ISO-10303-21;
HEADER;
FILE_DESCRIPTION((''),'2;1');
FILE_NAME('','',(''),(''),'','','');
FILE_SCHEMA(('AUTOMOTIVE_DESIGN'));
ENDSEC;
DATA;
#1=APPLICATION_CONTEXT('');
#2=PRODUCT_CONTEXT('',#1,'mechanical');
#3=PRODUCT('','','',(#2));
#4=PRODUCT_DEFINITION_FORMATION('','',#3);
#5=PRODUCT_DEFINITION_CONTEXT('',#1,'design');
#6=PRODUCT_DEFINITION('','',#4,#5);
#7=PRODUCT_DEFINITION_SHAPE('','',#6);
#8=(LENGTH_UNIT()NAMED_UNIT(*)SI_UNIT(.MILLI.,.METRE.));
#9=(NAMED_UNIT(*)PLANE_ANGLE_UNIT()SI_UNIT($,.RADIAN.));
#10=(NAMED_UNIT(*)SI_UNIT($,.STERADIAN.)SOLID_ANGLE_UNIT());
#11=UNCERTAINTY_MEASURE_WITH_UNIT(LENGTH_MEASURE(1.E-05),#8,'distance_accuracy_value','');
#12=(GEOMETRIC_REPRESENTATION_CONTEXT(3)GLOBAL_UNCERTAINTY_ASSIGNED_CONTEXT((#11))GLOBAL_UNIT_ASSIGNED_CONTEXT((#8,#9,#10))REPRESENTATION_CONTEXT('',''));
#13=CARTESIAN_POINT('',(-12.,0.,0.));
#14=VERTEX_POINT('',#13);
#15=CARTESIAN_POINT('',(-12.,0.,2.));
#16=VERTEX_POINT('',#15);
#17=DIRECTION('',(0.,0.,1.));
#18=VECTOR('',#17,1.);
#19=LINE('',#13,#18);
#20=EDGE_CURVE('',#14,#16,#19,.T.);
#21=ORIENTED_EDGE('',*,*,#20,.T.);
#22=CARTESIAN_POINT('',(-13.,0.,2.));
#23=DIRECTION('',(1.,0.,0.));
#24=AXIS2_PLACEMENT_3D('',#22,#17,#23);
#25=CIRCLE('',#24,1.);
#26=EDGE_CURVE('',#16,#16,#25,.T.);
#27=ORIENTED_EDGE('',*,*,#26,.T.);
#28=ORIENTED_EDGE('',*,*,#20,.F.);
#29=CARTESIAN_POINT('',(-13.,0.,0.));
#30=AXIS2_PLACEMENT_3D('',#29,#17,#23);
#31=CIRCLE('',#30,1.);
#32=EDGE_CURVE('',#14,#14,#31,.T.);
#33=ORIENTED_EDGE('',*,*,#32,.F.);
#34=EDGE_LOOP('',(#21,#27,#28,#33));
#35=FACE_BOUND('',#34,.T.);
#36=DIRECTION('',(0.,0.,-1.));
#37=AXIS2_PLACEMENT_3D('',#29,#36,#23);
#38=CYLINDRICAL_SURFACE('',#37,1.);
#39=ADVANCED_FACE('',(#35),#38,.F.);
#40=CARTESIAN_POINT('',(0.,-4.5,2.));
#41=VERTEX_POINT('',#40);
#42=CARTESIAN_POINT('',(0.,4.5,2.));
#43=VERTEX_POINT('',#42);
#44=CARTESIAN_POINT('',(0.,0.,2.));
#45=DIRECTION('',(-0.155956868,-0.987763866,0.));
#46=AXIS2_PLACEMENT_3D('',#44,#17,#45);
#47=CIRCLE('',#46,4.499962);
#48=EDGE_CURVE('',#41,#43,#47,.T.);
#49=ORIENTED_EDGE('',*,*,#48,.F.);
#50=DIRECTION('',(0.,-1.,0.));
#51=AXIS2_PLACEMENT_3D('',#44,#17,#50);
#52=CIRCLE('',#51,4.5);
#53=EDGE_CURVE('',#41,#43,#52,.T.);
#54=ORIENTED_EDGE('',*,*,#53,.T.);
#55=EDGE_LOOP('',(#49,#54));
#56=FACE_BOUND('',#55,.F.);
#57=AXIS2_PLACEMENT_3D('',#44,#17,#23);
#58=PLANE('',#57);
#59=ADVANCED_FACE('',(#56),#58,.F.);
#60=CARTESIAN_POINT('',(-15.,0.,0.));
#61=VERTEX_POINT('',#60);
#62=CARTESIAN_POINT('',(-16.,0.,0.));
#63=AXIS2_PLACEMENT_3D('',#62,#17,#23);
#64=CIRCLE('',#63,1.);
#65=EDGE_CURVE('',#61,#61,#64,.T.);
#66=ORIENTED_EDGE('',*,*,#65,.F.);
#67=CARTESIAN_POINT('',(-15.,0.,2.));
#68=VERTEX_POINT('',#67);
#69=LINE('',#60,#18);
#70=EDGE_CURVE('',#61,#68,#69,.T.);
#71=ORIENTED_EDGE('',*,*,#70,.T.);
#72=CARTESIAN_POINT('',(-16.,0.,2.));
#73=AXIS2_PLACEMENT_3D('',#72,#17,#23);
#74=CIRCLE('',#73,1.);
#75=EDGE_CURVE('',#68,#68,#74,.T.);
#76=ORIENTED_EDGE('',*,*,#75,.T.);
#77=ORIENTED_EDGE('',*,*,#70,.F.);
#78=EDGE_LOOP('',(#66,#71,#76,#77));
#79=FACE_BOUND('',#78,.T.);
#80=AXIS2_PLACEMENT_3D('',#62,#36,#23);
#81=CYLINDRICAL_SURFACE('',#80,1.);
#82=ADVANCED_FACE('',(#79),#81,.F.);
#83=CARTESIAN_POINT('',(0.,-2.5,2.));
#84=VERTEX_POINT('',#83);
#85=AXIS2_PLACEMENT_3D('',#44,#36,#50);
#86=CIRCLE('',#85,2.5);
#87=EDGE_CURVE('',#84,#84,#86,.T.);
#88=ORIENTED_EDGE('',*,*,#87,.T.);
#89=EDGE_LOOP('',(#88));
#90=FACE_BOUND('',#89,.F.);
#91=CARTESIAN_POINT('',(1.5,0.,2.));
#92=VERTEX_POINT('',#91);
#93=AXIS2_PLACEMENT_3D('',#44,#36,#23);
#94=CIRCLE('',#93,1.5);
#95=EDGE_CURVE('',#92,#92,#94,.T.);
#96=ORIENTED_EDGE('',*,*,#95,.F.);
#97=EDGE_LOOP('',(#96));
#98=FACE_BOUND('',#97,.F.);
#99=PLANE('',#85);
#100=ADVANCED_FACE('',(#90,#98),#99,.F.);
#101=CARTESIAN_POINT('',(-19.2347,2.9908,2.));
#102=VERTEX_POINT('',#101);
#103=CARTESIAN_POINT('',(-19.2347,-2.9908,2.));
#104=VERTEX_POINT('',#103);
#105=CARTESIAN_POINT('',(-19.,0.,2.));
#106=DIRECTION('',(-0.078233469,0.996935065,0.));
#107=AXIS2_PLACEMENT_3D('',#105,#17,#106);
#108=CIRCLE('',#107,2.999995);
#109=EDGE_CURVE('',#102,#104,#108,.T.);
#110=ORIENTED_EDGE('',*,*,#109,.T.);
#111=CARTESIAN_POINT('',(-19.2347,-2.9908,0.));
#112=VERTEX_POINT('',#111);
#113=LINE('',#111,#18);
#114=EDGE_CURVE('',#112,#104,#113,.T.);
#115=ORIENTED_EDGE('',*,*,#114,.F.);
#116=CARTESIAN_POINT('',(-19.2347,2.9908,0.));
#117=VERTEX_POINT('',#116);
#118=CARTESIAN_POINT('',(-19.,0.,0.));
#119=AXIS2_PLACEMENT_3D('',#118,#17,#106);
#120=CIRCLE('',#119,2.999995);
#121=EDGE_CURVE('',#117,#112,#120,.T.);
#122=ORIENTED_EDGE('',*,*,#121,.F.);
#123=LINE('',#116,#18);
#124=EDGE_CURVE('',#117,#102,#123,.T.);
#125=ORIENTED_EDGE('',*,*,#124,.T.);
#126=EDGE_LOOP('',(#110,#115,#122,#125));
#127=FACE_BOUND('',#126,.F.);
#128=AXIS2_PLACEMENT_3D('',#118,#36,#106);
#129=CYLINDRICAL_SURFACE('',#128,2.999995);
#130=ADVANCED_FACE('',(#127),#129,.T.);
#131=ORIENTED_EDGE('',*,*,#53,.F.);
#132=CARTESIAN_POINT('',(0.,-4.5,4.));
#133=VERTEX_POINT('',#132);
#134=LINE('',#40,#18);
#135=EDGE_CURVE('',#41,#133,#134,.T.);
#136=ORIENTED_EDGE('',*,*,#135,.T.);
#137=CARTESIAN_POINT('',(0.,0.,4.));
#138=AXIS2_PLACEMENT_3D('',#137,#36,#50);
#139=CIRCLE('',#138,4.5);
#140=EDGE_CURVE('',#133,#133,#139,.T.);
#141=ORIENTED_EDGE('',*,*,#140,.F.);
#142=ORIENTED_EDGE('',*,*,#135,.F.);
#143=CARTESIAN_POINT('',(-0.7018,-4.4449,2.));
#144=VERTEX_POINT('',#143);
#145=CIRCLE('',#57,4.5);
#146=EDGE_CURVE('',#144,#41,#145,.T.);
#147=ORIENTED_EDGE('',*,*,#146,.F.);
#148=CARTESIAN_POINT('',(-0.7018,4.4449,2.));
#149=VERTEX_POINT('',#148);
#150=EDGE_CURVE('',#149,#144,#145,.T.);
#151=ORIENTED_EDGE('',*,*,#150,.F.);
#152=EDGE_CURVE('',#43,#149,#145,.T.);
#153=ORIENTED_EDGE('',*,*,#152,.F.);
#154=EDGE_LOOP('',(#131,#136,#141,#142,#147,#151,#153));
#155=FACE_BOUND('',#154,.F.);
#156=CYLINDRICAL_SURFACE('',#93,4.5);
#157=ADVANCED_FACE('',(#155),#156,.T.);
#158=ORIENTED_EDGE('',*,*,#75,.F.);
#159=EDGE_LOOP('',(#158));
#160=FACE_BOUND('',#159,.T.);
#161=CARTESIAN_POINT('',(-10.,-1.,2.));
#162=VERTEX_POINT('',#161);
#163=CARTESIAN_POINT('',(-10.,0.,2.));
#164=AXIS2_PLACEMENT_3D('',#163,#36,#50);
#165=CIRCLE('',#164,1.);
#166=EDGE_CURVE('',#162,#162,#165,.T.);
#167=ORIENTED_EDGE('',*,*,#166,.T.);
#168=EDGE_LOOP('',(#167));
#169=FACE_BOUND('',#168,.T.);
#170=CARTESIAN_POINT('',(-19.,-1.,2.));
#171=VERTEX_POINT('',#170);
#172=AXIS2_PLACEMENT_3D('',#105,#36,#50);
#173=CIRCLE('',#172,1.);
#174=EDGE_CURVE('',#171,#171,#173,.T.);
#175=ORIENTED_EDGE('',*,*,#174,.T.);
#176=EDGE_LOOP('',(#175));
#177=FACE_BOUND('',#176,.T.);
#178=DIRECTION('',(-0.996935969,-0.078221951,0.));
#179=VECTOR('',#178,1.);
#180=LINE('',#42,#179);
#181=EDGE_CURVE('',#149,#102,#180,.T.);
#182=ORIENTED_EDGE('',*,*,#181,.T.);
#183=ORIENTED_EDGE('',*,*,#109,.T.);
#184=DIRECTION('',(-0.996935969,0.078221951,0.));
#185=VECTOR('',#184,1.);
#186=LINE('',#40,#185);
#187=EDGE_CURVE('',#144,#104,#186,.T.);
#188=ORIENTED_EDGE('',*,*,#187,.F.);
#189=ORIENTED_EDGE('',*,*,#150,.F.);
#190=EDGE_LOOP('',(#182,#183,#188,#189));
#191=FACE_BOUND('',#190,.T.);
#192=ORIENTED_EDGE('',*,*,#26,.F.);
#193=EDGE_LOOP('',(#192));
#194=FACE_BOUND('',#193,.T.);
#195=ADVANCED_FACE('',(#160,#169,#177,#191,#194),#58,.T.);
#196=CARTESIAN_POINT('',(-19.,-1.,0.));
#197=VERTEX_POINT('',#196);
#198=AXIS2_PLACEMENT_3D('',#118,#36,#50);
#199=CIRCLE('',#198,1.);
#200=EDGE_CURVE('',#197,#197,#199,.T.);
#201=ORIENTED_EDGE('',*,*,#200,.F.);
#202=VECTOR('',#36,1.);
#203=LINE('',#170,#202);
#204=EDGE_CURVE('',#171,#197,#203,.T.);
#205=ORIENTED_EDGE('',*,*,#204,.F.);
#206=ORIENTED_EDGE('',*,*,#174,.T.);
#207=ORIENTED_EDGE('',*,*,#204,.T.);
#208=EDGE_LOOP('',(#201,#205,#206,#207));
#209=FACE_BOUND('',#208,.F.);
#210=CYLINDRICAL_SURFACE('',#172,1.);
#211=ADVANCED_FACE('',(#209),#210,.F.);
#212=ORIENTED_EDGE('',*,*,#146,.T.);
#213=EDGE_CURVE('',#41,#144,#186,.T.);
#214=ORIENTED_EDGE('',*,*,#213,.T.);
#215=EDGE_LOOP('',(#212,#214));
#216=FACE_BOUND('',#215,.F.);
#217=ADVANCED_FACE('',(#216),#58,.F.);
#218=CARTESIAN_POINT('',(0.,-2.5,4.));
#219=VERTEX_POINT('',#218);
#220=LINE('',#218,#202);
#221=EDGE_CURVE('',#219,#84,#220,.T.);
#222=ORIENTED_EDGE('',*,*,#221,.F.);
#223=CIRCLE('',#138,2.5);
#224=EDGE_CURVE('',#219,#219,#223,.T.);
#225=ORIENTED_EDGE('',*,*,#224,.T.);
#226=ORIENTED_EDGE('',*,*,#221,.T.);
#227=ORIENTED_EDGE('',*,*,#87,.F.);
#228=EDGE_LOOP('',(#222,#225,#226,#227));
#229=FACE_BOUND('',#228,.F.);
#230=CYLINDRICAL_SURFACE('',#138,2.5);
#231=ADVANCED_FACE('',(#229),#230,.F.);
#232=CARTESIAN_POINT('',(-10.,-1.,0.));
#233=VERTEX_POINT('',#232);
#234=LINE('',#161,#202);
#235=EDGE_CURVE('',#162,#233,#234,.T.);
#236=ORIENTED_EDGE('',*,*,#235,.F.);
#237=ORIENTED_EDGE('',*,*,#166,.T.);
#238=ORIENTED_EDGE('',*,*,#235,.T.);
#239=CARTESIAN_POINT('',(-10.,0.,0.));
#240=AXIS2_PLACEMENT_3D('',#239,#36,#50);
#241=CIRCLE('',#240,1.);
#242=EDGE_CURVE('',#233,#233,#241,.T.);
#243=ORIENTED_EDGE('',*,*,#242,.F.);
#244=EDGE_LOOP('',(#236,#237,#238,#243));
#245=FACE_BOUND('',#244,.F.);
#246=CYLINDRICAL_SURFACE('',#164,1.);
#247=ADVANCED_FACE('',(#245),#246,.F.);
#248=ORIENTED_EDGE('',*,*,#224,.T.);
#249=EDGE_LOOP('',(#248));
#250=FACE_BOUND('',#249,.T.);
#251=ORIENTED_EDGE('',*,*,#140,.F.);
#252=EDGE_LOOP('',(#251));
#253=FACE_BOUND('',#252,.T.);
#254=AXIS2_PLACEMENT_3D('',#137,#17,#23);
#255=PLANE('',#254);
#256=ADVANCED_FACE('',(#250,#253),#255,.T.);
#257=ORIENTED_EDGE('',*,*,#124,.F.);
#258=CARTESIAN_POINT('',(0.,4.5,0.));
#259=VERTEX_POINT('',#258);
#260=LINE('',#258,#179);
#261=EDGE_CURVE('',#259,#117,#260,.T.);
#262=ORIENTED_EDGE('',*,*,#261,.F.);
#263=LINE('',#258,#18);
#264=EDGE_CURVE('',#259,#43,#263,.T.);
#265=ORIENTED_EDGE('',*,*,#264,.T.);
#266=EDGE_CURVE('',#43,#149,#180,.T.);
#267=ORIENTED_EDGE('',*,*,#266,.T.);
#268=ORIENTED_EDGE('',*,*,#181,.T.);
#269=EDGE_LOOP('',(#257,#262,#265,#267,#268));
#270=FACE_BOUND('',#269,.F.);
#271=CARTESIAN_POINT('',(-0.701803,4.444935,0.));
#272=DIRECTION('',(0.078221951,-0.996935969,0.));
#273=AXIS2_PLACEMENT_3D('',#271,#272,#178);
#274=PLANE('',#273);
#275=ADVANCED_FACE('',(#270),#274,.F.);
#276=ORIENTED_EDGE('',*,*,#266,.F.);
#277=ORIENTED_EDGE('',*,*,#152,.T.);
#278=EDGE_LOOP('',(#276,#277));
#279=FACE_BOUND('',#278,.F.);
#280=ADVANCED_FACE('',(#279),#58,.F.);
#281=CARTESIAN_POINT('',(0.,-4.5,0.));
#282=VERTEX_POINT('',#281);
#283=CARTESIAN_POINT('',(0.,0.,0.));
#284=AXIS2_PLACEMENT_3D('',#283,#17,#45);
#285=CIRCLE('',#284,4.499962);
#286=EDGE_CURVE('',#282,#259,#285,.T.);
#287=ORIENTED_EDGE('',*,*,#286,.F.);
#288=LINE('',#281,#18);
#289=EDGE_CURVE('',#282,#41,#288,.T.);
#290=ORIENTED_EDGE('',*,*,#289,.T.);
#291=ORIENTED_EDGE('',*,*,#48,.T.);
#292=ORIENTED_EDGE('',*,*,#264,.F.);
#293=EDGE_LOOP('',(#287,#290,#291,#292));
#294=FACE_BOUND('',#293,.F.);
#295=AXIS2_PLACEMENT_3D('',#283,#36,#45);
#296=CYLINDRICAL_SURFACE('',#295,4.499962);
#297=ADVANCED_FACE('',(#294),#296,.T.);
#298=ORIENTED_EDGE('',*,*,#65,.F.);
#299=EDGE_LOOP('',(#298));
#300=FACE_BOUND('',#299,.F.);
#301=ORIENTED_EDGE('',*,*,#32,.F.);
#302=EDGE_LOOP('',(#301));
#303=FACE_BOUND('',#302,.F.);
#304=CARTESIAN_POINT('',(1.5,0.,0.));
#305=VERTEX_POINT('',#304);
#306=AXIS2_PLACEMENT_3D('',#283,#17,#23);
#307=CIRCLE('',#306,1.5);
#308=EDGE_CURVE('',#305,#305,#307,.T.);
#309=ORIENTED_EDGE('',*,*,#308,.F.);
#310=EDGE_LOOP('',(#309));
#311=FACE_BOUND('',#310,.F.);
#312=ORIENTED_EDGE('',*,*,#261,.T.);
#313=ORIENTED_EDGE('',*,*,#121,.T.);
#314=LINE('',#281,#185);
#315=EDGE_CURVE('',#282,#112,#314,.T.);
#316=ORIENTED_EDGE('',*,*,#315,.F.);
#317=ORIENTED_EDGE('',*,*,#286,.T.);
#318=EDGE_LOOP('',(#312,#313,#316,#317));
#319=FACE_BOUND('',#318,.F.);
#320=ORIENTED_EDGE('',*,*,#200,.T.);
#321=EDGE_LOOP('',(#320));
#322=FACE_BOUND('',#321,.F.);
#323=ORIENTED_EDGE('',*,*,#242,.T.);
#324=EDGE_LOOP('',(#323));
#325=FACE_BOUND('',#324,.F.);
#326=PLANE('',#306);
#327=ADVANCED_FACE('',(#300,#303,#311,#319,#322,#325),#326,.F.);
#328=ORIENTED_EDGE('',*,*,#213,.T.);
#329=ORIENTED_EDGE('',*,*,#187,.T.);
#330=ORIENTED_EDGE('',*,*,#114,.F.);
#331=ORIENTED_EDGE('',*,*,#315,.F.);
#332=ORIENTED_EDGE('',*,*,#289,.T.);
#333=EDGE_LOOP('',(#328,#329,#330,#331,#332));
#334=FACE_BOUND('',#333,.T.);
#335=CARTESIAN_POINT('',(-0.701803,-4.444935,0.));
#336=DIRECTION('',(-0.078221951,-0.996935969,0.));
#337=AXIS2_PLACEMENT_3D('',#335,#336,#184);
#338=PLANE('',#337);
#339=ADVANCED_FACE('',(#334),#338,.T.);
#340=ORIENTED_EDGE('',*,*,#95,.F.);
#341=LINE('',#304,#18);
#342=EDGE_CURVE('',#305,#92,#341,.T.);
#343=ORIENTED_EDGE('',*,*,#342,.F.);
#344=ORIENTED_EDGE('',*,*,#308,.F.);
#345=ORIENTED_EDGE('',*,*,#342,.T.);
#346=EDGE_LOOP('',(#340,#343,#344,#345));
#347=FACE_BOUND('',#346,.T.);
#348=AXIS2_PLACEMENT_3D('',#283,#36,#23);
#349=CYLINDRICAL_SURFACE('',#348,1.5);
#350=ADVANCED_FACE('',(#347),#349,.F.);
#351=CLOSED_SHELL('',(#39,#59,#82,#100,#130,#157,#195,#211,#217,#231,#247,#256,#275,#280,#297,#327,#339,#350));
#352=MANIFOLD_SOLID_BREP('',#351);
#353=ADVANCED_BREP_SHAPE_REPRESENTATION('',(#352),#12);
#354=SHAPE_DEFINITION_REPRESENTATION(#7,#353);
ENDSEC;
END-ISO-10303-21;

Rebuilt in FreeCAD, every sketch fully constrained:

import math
import FreeCAD as App
import Part
import Sketcher
from FreeCAD import Vector

doc = App.newDocument("Part")
params = doc.addObject("Spreadsheet::Sheet", "Params")
for row, (alias, value) in enumerate([
    ("sketch1_diameter", "2 mm"),
    ("sketch1_diameter2", "3 mm"),
    ("sketch1_radius", "3 mm"),
    ("sketch1_radius2", "4.5 mm"),
    ("pad1_length", "2 mm"),
    ("sketch2_diameter", "9 mm"),
    ("sketch2_diameter2", "3 mm"),
    ("pad2_length", "2 mm"),
    ("sketch3_diameter", "5 mm"),
    ("hole_diameter", "5 mm"),
    ("hole_depth", "2 mm"),
    ("sketch4_diameter", "2 mm"),
    ("hole2_diameter", "2 mm"),
], start=1):
    params.set(f"A{row}", alias)
    params.set(f"B{row}", "=" + value)
    params.setAlias(f"B{row}", alias)

body = doc.addObject("PartDesign::Body", "Body")

sketch1 = body.newObject("Sketcher::SketchObject", "Sketch")
sketch1.AttachmentSupport = (doc.getObject("XY_Plane"), [""])
sketch1.MapMode = "FlatFace"
sketch1.addGeometry([
    Part.LineSegment(Vector(0, 4.5, 0), Vector(-19.2, 3, 0)),
    Part.ArcOfCircle(Part.Circle(Vector(-19, 0, 0), Vector(0, 0, 1), 3), math.radians(94), math.radians(266)),
    Part.LineSegment(Vector(-19.2, -3, 0), Vector(0, -4.5, 0)),
    Part.ArcOfCircle(Part.Circle(Vector(0, 0, 0), Vector(0, 0, 1), 4.5), math.radians(-90), math.radians(90)),
    Part.Circle(Vector(-16, 0, 0), Vector(0, 0, 1), 1),
    Part.Circle(Vector(-13, 0, 0), Vector(0, 0, 1), 1),
    Part.Circle(Vector(0, 0, 0), Vector(0, 0, 1), 1.5),
], False)
sketch1.addConstraint([
    Sketcher.Constraint("Tangent", 0, 2, 1, 1),
    Sketcher.Constraint("Tangent", 1, 2, 2, 1),
    Sketcher.Constraint("Coincident", 2, 2, 3, 1),
    Sketcher.Constraint("Coincident", 3, 2, 0, 1),
    Sketcher.Constraint("Coincident", 3, 3, -1, 1),
    Sketcher.Constraint("Coincident", 6, 3, -1, 1),
    Sketcher.Constraint("Equal", 4, 5),
    Sketcher.Constraint("Symmetric", 0, 2, 1, 2, -1),
    Sketcher.Constraint("PointOnObject", 4, 3, -1),
    Sketcher.Constraint("PointOnObject", 5, 3, -1),
    Sketcher.Constraint("PointOnObject", 2, 2, -2),
    Sketcher.Constraint("Diameter", 4, 2.0),
    Sketcher.Constraint("Diameter", 6, 3.0),
    Sketcher.Constraint("Radius", 1, 3.0),
    Sketcher.Constraint("Radius", 3, 4.5),
    Sketcher.Constraint("DistanceX", 1, 3, 4, 3, 3.0),
    Sketcher.Constraint("DistanceX", 4, 3, 5, 3, 3.0),
    Sketcher.Constraint("DistanceX", 1, 3, -1, 1, 19.0),
])
sketch1.setExpression("Constraints[11]", "Params.sketch1_diameter")
sketch1.setExpression("Constraints[12]", "Params.sketch1_diameter2")
sketch1.setExpression("Constraints[13]", "Params.sketch1_radius")
sketch1.setExpression("Constraints[14]", "Params.sketch1_radius2")
pad1 = body.newObject("PartDesign::Pad", "Pad")
pad1.Profile = sketch1
pad1.setExpression("Length", "Params.pad1_length")

sketch2 = body.newObject("Sketcher::SketchObject", "Sketch001")
sketch2.AttachmentSupport = (doc.getObject("XY_Plane"), [""])
sketch2.MapMode = "FlatFace"
sketch2.AttachmentOffset = App.Placement(Vector(0, 0, 2), App.Rotation())
sketch2.addGeometry([
    Part.Circle(Vector(0, 0, 0), Vector(0, 0, 1), 4.5),
    Part.Circle(Vector(0, 0, 0), Vector(0, 0, 1), 1.5),
], False)
sketch2.addConstraint([
    Sketcher.Constraint("Coincident", 0, 3, -1, 1),
    Sketcher.Constraint("Coincident", 1, 3, -1, 1),
    Sketcher.Constraint("Diameter", 0, 9.0),
    Sketcher.Constraint("Diameter", 1, 3.0),
])
sketch2.setExpression("Constraints[2]", "Params.sketch2_diameter")
sketch2.setExpression("Constraints[3]", "Params.sketch2_diameter2")
pad2 = body.newObject("PartDesign::Pad", "Pad001")
pad2.Profile = sketch2
pad2.setExpression("Length", "Params.pad2_length")

sketch3 = body.newObject("Sketcher::SketchObject", "Sketch002")
sketch3.AttachmentSupport = (doc.getObject("XY_Plane"), [""])
sketch3.MapMode = "FlatFace"
sketch3.AttachmentOffset = App.Placement(Vector(0, 0, 4), App.Rotation())
sketch3.addGeometry(Part.Circle(Vector(0, 0, 0), Vector(0, 0, 1), 2.5), False)
sketch3.addConstraint([
    Sketcher.Constraint("Coincident", 0, 3, -1, 1),
    Sketcher.Constraint("Diameter", 0, 5.0),
])
sketch3.setExpression("Constraints[1]", "Params.sketch3_diameter")
doc.recompute()
hole = body.newObject("PartDesign::Hole", "Hole")
hole.Profile = sketch3
hole.ThreadType = "None"
hole.setExpression("Diameter", "Params.hole_diameter")
hole.DepthType = "Dimension"
hole.setExpression("Depth", "Params.hole_depth")
hole.DrillPoint = "Flat"

sketch4 = body.newObject("Sketcher::SketchObject", "Sketch003")
sketch4.AttachmentSupport = (doc.getObject("XY_Plane"), [""])
sketch4.MapMode = "FlatFace"
sketch4.AttachmentOffset = App.Placement(Vector(0, 0, 2), App.Rotation())
sketch4.addGeometry([
    Part.Circle(Vector(-19, 0, 0), Vector(0, 0, 1), 1),
    Part.Circle(Vector(-10, 0, 0), Vector(0, 0, 1), 1),
], False)
sketch4.addConstraint([
    Sketcher.Constraint("Equal", 0, 1),
    Sketcher.Constraint("PointOnObject", 0, 3, -1),
    Sketcher.Constraint("PointOnObject", 1, 3, -1),
    Sketcher.Constraint("Diameter", 0, 2.0),
    Sketcher.Constraint("DistanceX", 0, 3, -1, 1, 19.0),
    Sketcher.Constraint("DistanceX", 1, 3, -1, 1, 10.0),
])
sketch4.setExpression("Constraints[3]", "Params.sketch4_diameter")
doc.recompute()
hole2 = body.newObject("PartDesign::Hole", "Hole001")
hole2.Profile = sketch4
hole2.ThreadType = "None"
hole2.setExpression("Diameter", "Params.hole2_diameter")
hole2.DepthType = "ThroughAll"

doc.recompute()
